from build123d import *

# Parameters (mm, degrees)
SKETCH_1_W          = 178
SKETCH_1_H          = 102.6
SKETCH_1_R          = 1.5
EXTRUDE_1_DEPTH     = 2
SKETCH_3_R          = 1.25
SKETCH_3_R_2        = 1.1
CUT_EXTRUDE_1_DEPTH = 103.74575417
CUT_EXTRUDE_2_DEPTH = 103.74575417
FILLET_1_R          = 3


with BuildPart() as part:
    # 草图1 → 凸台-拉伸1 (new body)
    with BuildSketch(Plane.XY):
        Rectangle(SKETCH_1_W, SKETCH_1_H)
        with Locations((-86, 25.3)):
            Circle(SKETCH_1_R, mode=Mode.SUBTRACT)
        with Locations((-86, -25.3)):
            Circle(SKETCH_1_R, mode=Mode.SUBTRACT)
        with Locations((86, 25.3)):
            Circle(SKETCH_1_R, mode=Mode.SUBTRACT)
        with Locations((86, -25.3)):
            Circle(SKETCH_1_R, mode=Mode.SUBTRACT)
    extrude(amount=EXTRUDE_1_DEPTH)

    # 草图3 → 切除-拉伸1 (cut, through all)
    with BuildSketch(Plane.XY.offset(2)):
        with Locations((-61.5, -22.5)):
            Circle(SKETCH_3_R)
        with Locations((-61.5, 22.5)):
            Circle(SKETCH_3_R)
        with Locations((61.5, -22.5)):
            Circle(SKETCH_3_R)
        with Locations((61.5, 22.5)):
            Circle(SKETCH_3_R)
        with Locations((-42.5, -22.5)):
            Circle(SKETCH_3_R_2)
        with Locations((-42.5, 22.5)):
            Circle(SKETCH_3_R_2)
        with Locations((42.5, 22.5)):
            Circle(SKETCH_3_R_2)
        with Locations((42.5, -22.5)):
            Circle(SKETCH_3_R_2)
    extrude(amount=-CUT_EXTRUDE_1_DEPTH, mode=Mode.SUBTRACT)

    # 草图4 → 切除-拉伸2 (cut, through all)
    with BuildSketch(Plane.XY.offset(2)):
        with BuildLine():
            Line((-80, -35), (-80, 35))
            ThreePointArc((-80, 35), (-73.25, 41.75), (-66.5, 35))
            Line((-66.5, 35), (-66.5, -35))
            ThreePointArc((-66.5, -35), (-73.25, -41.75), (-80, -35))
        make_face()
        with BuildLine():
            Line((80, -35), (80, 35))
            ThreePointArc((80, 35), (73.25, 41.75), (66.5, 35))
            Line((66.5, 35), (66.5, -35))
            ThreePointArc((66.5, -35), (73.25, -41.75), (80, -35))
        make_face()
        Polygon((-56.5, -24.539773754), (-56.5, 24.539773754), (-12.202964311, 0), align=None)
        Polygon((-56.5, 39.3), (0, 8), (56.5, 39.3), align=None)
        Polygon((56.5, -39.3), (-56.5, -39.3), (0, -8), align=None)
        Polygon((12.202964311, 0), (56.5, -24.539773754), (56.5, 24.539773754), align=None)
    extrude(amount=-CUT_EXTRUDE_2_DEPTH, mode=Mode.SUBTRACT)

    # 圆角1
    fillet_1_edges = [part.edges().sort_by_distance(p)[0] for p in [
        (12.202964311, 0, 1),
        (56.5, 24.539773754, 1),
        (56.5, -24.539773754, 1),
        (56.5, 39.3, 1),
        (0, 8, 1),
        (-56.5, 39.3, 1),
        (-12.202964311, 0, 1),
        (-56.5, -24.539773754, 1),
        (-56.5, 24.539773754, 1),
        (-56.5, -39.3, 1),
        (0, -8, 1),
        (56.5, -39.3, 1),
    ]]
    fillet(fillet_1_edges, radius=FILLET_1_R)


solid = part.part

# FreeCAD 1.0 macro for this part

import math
import FreeCAD as App
import Part
import Sketcher

V = App.Vector
Q = App.Units.Quantity


def edges_at(feature, points):
    """Names of the edges that pass closest to the given points."""
    edges = feature.Shape.Edges
    near = lambda p: min(range(len(edges)), key=lambda i: edges[i].distToShape(Part.Vertex(*p))[0])
    return sorted({f"Edge{near(p) + 1}" for p in points})

doc = App.newDocument("Part")
body = doc.addObject("PartDesign::Body", "Body")

# Sketch on XY plane
sketch1 = body.newObject("Sketcher::SketchObject", "Sketch")
sketch1.AttachmentSupport = (doc.getObject("XY_Plane"), [""])
sketch1.MapMode = "FlatFace"
sketch1.addGeometry([
    Part.LineSegment(V(-89, 51.3, 0), V(-89, -51.3, 0)),  # 0
    Part.LineSegment(V(-89, -51.3, 0), V(89, -51.3, 0)),  # 1
    Part.LineSegment(V(89, -51.3, 0), V(89, 51.3, 0)),  # 2
    Part.LineSegment(V(89, 51.3, 0), V(-89, 51.3, 0)),  # 3
    Part.Circle(V(-86, -25.3, 0), V(0, 0, 1), 1.5),  # 4
    Part.Circle(V(86, -25.3, 0), V(0, 0, 1), 1.5),  # 5
    Part.Circle(V(-86, 25.3, 0), V(0, 0, 1), 1.5),  # 6
    Part.Circle(V(86, 25.3, 0), V(0, 0, 1), 1.5),  # 7
], False)
sketch1.addConstraint([
    Sketcher.Constraint("Coincident", 0, 2, 1, 1),
    Sketcher.Constraint("Coincident", 1, 2, 2, 1),
    Sketcher.Constraint("Coincident", 2, 2, 3, 1),
    Sketcher.Constraint("Coincident", 3, 2, 0, 1),
    Sketcher.Constraint("Vertical", 0),
    Sketcher.Constraint("Horizontal", 1),
    Sketcher.Constraint("Vertical", 2),
    Sketcher.Constraint("Horizontal", 3),
    Sketcher.Constraint("Equal", 4, 5),
    Sketcher.Constraint("Equal", 5, 6),
    Sketcher.Constraint("Equal", 6, 7),
    Sketcher.Constraint("Symmetric", 5, 3, 6, 3, -1, 1),
    Sketcher.Constraint("Symmetric", 4, 3, 7, 3, -1, 1),
    Sketcher.Constraint("Symmetric", 0, 2, 2, 2, -1, 1),
    Sketcher.Constraint("Symmetric", 4, 3, 5, 3, -2),
    Sketcher.Constraint("Diameter", 4, Q("3 mm")),
    Sketcher.Constraint("DistanceX", 1, 1, 1, 2, Q("178 mm")),
    Sketcher.Constraint("DistanceY", 0, 2, 0, 1, Q("102.6 mm")),
    Sketcher.Constraint("DistanceX", 4, 3, -1, 1, Q("86 mm")),
    Sketcher.Constraint("DistanceY", 0, 2, 4, 3, Q("26 mm")),
])
pad1 = body.newObject("PartDesign::Pad", "Pad")
pad1.Profile = sketch1
pad1.Length = 2

# Sketch on XY plane
sketch2 = body.newObject("Sketcher::SketchObject", "Sketch001")
sketch2.AttachmentSupport = (doc.getObject("XY_Plane"), [""])
sketch2.MapMode = "FlatFace"
sketch2.AttachmentOffset = App.Placement(V(0, 0, 2), App.Rotation())
sketch2.addGeometry([
    Part.Circle(V(-61.5, -22.5, 0), V(0, 0, 1), 1.2),  # 0
    Part.Circle(V(-61.5, 22.5, 0), V(0, 0, 1), 1.2),  # 1
    Part.Circle(V(61.5, -22.5, 0), V(0, 0, 1), 1.2),  # 2
    Part.Circle(V(61.5, 22.5, 0), V(0, 0, 1), 1.2),  # 3
    Part.Circle(V(-42.5, -22.5, 0), V(0, 0, 1), 1.1),  # 4
    Part.Circle(V(-42.5, 22.5, 0), V(0, 0, 1), 1.1),  # 5
    Part.Circle(V(42.5, 22.5, 0), V(0, 0, 1), 1.1),  # 6
    Part.Circle(V(42.5, -22.5, 0), V(0, 0, 1), 1.1),  # 7
], False)
sketch2.addConstraint([
    Sketcher.Constraint("Equal", 0, 1),
    Sketcher.Constraint("Equal", 1, 2),
    Sketcher.Constraint("Equal", 2, 3),
    Sketcher.Constraint("Equal", 4, 5),
    Sketcher.Constraint("Equal", 5, 6),
    Sketcher.Constraint("Equal", 6, 7),
    Sketcher.Constraint("Symmetric", 1, 3, 2, 3, -1, 1),
    Sketcher.Constraint("Symmetric", 0, 3, 3, 3, -1, 1),
    Sketcher.Constraint("Symmetric", 4, 3, 6, 3, -1, 1),
    Sketcher.Constraint("Symmetric", 5, 3, 7, 3, -1, 1),
    Sketcher.Constraint("Symmetric", 0, 3, 2, 3, -2),
    Sketcher.Constraint("Symmetric", 5, 3, 6, 3, -2),
    Sketcher.Constraint("Horizontal", 2, 3, 4, 3),
    Sketcher.Constraint("Diameter", 0, Q("2.5 mm")),
    Sketcher.Constraint("Diameter", 4, Q("2.2 mm")),
    Sketcher.Constraint("DistanceY", 0, 3, 1, 3, Q("45 mm")),
    Sketcher.Constraint("DistanceX", 0, 3, 2, 3, Q("123 mm")),
    Sketcher.Constraint("DistanceX", 0, 3, 4, 3, Q("19 mm")),
])
pocket1 = body.newObject("PartDesign::Pocket", "Pocket")
pocket1.Profile = sketch2
pocket1.Type = "ThroughAll"

# Sketch on XY plane
sketch3 = body.newObject("Sketcher::SketchObject", "Sketch002")
sketch3.AttachmentSupport = (doc.getObject("XY_Plane"), [""])
sketch3.MapMode = "FlatFace"
sketch3.AttachmentOffset = App.Placement(V(0, 0, 2), App.Rotation())
sketch3.addGeometry([
    Part.LineSegment(V(-80, 35, 0), V(-80, -35, 0)),  # 0
    Part.ArcOfCircle(Part.Circle(V(-73, -35, 0), V(0, 0, 1), 7), math.radians(180), math.radians(360)),  # 1
    Part.LineSegment(V(-66, -35, 0), V(-66, 35, 0)),  # 2
    Part.ArcOfCircle(Part.Circle(V(-73, 35, 0), V(0, 0, 1), 7), math.radians(0), math.radians(180)),  # 3
    Part.LineSegment(V(80, -35, 0), V(80, 35, 0)),  # 4
    Part.ArcOfCircle(Part.Circle(V(73, 35, 0), V(0, 0, 1), 7), math.radians(0), math.radians(180)),  # 5
    Part.LineSegment(V(66, 35, 0), V(66, -35, 0)),  # 6
    Part.ArcOfCircle(Part.Circle(V(73, -35, 0), V(0, 0, 1), 7), math.radians(180), math.radians(360)),  # 7
    Part.LineSegment(V(-56, 25, 0), V(-56, -25, 0)),  # 8
    Part.LineSegment(V(-56, -25, 0), V(-12, 0, 0)),  # 9
    Part.LineSegment(V(-12, 0, 0), V(-56, 25, 0)),  # 10
    Part.LineSegment(V(-56, 39, 0), V(0, 8, 0)),  # 11
    Part.LineSegment(V(0, 8, 0), V(56, 39, 0)),  # 12
    Part.LineSegment(V(56, 39, 0), V(-56, 39, 0)),  # 13
    Part.LineSegment(V(-56, -39, 0), V(56, -39, 0)),  # 14
    Part.LineSegment(V(56, -39, 0), V(0, -8, 0)),  # 15
    Part.LineSegment(V(0, -8, 0), V(-56, -39, 0)),  # 16
    Part.LineSegment(V(12, 0, 0), V(56, -25, 0)),  # 17
    Part.LineSegment(V(56, -25, 0), V(56, 25, 0)),  # 18
    Part.LineSegment(V(56, 25, 0), V(12, 0, 0)),  # 19
], False)
sketch3.addConstraint([
    Sketcher.Constraint("Tangent", 0, 2, 1, 1),
    Sketcher.Constraint("Tangent", 1, 2, 2, 1),
    Sketcher.Constraint("Tangent", 2, 2, 3, 1),
    Sketcher.Constraint("Tangent", 3, 2, 0, 1),
    Sketcher.Constraint("Tangent", 4, 2, 5, 1),
    Sketcher.Constraint("Tangent", 5, 2, 6, 1),
    Sketcher.Constraint("Tangent", 6, 2, 7, 1),
    Sketcher.Constraint("Tangent", 7, 2, 4, 1),
    Sketcher.Constraint("Coincident", 8, 2, 9, 1),
    Sketcher.Constraint("Coincident", 9, 2, 10, 1),
    Sketcher.Constraint("Coincident", 10, 2, 8, 1),
    Sketcher.Constraint("Coincident", 11, 2, 12, 1),
    Sketcher.Constraint("Coincident", 12, 2, 13, 1),
    Sketcher.Constraint("Coincident", 13, 2, 11, 1),
    Sketcher.Constraint("Coincident", 14, 2, 15, 1),
    Sketcher.Constraint("Coincident", 15, 2, 16, 1),
    Sketcher.Constraint("Coincident", 16, 2, 14, 1),
    Sketcher.Constraint("Coincident", 17, 2, 18, 1),
    Sketcher.Constraint("Coincident", 18, 2, 19, 1),
    Sketcher.Constraint("Coincident", 19, 2, 17, 1),
    Sketcher.Constraint("Vertical", 0),
    Sketcher.Constraint("Vertical", 2),
    Sketcher.Constraint("Vertical", 4),
    Sketcher.Constraint("Vertical", 6),
    Sketcher.Constraint("Vertical", 8),
    Sketcher.Constraint("Horizontal", 13),
    Sketcher.Constraint("Horizontal", 14),
    Sketcher.Constraint("Vertical", 18),
    Sketcher.Constraint("Equal", 3, 5),
    Sketcher.Constraint("Symmetric", 1, 3, 5, 3, -1, 1),
    Sketcher.Constraint("Symmetric", 13, 2, 14, 2, -1, 1),
    Sketcher.Constraint("Symmetric", 11, 2, 15, 2, -1, 1),
    Sketcher.Constraint("Symmetric", 10, 2, 17, 2, -1, 1),
    Sketcher.Constraint("Symmetric", 9, 2, 19, 2, -1, 1),
    Sketcher.Constraint("PointOnObject", 9, 2, -1),
    Sketcher.Constraint("PointOnObject", 11, 2, -2),
    Sketcher.Constraint("Parallel", 10, 11),
    Sketcher.Constraint("Parallel", 9, 12),
    Sketcher.Constraint("Parallel", 12, 16),
    Sketcher.Constraint("Parallel", 16, 19),
    Sketcher.Constraint("Horizontal", 3, 3, 5, 3),
    Sketcher.Constraint("Horizontal", 1, 3, 7, 3),
    Sketcher.Constraint("Horizontal", 8, 2, 17, 2),
    Sketcher.Constraint("Vertical", 10, 2, 13, 2),
    Sketcher.Constraint("DistanceX", 13, 2, 13, 1, Q("113 mm")),
    Sketcher.Constraint("DistanceY", 0, 2, 0, 1, Q("70 mm")),
    Sketcher.Constraint("Radius", 1, Q("6.75 mm")),
    Sketcher.Constraint("DistanceX", 0, 2, -1, 1, Q("80 mm")),
    Sketcher.Constraint("DistanceY", -1, 1, 11, 2, Q("8 mm")),
    Sketcher.Constraint("DistanceY", -1, 1, 12, 2, Q("39.3 mm")),
    Sketcher.Constraint("Distance", 9, Q("50.64018 mm")),
])
pocket2 = body.newObject("PartDesign::Pocket", "Pocket001")
pocket2.Profile = sketch3
pocket2.Type = "ThroughAll"
doc.recompute()

fillet = body.newObject("PartDesign::Fillet", "Fillet")
fillet.Base = (pocket2, edges_at(pocket2, [
    (12.203, 0, 1),
    (56.5, 24.54, 1),
    (56.5, -24.54, 1),
    (56.5, 39.3, 1),
    (0, 8, 1),
    (-56.5, 39.3, 1),
    (-12.203, 0, 1),
    (-56.5, -24.54, 1),
    (-56.5, 24.54, 1),
    (-56.5, -39.3, 1),
    (0, -8, 1),
    (56.5, -39.3, 1),
]))
fillet.Radius = 3

doc.recompute()
